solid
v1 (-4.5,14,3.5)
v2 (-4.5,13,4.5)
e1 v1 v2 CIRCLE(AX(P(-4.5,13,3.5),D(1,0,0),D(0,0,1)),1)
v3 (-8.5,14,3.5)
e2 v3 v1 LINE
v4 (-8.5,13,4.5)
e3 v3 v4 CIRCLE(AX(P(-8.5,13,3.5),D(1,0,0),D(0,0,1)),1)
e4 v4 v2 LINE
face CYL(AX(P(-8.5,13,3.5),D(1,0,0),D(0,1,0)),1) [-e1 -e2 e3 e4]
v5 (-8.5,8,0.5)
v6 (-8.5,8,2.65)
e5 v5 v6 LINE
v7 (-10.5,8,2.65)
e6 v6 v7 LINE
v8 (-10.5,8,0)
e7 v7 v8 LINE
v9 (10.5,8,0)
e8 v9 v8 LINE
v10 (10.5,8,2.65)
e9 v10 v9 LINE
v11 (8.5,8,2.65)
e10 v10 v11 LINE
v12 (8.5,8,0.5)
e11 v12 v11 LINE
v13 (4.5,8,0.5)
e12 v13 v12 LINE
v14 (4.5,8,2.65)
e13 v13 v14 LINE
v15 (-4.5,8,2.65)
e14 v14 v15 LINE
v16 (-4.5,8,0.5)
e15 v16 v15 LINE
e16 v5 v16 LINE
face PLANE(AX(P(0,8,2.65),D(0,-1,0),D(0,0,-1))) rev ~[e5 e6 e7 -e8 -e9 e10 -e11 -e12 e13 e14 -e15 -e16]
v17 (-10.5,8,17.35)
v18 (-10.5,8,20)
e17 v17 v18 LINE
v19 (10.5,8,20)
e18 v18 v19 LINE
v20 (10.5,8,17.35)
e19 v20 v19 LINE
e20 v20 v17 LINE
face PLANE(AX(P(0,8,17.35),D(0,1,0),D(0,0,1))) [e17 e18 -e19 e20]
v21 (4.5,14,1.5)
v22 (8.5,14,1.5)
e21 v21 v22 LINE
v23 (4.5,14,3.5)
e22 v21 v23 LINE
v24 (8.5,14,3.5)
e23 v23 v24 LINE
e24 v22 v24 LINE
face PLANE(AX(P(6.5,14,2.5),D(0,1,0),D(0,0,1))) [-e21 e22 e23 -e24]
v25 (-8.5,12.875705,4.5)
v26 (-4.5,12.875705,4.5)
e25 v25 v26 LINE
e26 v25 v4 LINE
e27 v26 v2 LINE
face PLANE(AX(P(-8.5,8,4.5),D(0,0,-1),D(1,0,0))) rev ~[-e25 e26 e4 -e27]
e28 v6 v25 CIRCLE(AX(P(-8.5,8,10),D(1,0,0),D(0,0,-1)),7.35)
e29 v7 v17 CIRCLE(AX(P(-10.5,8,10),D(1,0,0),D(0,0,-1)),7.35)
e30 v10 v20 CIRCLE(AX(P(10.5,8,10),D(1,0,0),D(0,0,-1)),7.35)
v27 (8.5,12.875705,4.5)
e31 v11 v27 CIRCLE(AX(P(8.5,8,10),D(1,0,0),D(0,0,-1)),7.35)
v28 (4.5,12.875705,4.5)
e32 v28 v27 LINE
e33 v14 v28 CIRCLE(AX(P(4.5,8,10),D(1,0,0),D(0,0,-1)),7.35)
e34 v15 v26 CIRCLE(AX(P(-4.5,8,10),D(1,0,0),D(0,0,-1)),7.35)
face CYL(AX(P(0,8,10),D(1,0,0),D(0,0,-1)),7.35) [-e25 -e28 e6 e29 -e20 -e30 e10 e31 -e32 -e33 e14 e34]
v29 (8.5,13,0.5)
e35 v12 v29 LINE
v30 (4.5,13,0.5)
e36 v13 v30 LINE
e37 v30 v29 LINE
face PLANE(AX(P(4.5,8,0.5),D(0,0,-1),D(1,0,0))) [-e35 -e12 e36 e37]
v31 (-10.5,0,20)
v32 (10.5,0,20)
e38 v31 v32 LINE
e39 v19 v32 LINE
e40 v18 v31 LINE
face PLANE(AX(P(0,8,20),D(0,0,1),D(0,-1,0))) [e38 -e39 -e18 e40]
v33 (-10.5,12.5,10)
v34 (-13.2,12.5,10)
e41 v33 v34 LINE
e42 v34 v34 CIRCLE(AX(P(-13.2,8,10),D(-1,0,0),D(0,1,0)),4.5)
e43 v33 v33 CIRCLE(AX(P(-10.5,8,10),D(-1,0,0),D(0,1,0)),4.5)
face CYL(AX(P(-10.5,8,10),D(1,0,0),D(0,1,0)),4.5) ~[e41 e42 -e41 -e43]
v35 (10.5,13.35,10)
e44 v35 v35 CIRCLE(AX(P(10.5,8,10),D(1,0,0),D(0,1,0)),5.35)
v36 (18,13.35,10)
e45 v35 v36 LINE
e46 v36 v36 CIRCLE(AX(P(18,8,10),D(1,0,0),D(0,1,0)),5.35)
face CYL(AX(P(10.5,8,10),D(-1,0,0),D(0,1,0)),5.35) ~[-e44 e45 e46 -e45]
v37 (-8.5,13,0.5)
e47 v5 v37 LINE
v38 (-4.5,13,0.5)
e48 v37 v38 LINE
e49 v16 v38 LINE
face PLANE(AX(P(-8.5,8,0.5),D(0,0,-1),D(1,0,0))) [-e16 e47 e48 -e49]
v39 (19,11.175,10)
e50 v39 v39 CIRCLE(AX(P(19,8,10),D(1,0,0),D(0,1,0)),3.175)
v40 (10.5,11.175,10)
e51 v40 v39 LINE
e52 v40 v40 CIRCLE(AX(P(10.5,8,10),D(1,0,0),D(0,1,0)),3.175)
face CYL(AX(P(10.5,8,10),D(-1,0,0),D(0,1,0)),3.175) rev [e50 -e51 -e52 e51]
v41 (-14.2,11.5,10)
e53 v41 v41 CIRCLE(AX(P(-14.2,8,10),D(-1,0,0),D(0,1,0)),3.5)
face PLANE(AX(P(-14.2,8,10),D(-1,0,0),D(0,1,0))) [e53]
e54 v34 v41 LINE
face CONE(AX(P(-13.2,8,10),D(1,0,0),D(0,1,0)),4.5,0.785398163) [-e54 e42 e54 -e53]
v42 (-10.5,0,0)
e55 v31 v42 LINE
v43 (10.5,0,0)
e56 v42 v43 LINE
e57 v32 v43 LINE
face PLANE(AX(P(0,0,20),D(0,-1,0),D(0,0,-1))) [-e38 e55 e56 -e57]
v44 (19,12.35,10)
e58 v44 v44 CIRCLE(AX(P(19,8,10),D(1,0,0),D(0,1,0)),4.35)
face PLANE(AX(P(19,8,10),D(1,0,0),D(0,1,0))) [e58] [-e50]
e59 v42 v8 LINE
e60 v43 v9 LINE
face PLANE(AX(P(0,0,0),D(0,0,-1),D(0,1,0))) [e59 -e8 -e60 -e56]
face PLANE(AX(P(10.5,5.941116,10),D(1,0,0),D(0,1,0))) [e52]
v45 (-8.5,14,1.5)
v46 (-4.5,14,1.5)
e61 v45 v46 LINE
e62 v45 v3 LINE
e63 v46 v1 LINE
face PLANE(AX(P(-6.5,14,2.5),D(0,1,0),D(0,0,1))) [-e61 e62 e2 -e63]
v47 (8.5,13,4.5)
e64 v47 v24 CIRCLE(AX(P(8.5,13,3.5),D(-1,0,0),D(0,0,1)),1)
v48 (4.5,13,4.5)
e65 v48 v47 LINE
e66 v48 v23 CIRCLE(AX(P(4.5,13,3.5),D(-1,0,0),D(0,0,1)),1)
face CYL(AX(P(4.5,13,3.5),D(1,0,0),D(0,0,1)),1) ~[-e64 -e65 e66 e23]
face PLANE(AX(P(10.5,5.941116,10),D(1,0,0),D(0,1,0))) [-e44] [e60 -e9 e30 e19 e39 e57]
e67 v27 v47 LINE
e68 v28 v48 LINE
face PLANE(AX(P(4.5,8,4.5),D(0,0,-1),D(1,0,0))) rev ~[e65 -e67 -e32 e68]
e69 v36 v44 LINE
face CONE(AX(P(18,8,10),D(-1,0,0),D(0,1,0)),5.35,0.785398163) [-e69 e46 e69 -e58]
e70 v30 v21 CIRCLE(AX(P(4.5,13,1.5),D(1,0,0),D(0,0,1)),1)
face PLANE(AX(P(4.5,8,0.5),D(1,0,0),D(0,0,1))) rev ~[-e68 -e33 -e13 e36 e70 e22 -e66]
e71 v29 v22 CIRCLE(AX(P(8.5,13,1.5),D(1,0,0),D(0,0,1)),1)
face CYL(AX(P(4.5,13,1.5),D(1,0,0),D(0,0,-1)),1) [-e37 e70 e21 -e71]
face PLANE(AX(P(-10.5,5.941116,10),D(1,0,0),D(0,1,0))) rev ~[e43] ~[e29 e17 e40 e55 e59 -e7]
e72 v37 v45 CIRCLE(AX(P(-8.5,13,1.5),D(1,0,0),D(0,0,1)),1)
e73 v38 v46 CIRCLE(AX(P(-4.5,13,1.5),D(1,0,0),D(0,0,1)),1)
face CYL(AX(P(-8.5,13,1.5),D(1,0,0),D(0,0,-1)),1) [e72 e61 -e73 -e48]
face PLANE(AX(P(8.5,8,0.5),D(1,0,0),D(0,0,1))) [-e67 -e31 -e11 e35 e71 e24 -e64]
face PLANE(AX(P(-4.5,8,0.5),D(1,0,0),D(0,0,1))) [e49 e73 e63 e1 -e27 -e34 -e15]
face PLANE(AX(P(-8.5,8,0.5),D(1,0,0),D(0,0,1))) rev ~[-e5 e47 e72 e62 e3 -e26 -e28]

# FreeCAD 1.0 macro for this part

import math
import FreeCAD as App
import Part
import Sketcher

V = App.Vector
Q = App.Units.Quantity


def edges_at(feature, points):
    """Names of the edges that pass closest to the given points."""
    edges = feature.Shape.Edges
    near = lambda p: min(range(len(edges)), key=lambda i: edges[i].distToShape(Part.Vertex(*p))[0])
    return sorted({f"Edge{near(p) + 1}" for p in points})


def add_polygon(sketch, points):
    """Adds a closed chain of lines whose ends are joined by coincident constraints."""
    first, n = sketch.GeometryCount, len(points)
    for a, b in zip(points, points[1:] + points[:1]):
        sketch.addGeometry(Part.LineSegment(App.Vector(*a, 0), App.Vector(*b, 0)), False)
    for i in range(n):
        sketch.addConstraint(Sketcher.Constraint("Coincident", first + i, 2, first + (i + 1) % n, 1))

doc = App.newDocument("Part")
body = doc.addObject("PartDesign::Body", "Body")

sketch1 = doc.addObject("Sketcher::SketchObject", "Sketch")
body.addObject(sketch1)
sketch1.AttachmentSupport = (doc.YZ_Plane, [""])
sketch1.MapMode = "FlatFace"
sketch1.addGeometry([
    Part.LineSegment(V(8, 17.35, 0), V(8, 20, 0)),
    Part.LineSegment(V(8, 20, 0), V(0, 20, 0)),
    Part.LineSegment(V(0, 20, 0), V(0, 0, 0)),
    Part.LineSegment(V(0, 0, 0), V(8, 0, 0)),
    Part.LineSegment(V(8, 0, 0), V(8, 2.65, 0)),
    Part.ArcOfCircle(Part.Circle(V(8, 10, 0), V(0, 0, 1), 7.35), math.radians(-90), math.radians(90)),
], False)
sketch1.addConstraint([
    Sketcher.Constraint("Coincident", 0, 2, 1, 1),
    Sketcher.Constraint("Coincident", 1, 2, 2, 1),
    Sketcher.Constraint("Coincident", 2, 2, 3, 1),
    Sketcher.Constraint("Coincident", 3, 2, 4, 1),
    Sketcher.Constraint("Coincident", 4, 2, 5, 1),
    Sketcher.Constraint("Coincident", 5, 2, 0, 1),
    Sketcher.Constraint("Vertical", 0),
    Sketcher.Constraint("Horizontal", 1),
    Sketcher.Constraint("Vertical", 2),
    Sketcher.Constraint("Horizontal", 3),
    Sketcher.Constraint("Vertical", 4),
    Sketcher.Constraint("Coincident", 2, 2, -1, 1),
    Sketcher.Constraint("Vertical", 5, 3, 0, 2),
    Sketcher.Constraint("Vertical", 0, 2, 3, 2),
    Sketcher.Constraint("Equal", 0, 4),
    Sketcher.Constraint("DistanceX", 1, 2, 1, 1, Q("8 mm")),
    Sketcher.Constraint("DistanceY", 2, 2, 2, 1, Q("20 mm")),
    Sketcher.Constraint("Radius", 5, Q("7.35 mm")),
])
pad1 = doc.addObject("PartDesign::Pad", "Pad")
body.addObject(pad1)
pad1.Profile = sketch1
pad1.Length = 21
pad1.Midplane = True

sketch2 = doc.addObject("Sketcher::SketchObject", "Sketch001")
body.addObject(sketch2)
sketch2.AttachmentSupport = (doc.YZ_Plane, [""])
sketch2.MapMode = "FlatFace"
sketch2.AttachmentOffset = App.Placement(V(0, 0, 10.5), App.Rotation())
sketch2.addGeometry([
    Part.Circle(V(8, 10, 0), V(0, 0, 1), 5.35),
    Part.Circle(V(8, 10, 0), V(0, 0, 1), 3.175),
], False)
sketch2.addConstraint([
    Sketcher.Constraint("Coincident", 1, 3, 0, 3),
    Sketcher.Constraint("Diameter", 0, Q("10.7 mm")),
    Sketcher.Constraint("Diameter", 1, Q("6.35 mm")),
    Sketcher.Constraint("DistanceX", -1, 1, 0, 3, Q("8 mm")),
    Sketcher.Constraint("DistanceY", -1, 1, 0, 3, Q("10 mm")),
])
pad2 = doc.addObject("PartDesign::Pad", "Pad001")
body.addObject(pad2)
pad2.Profile = sketch2
pad2.Length = 8.5

sketch3 = doc.addObject("Sketcher::SketchObject", "Sketch002")
body.addObject(sketch3)
sketch3.AttachmentSupport = (doc.YZ_Plane, [""])
sketch3.MapMode = "FlatFace"
sketch3.AttachmentOffset = App.Placement(V(0, 0, -10.5), App.Rotation())
sketch3.addGeometry(Part.Circle(V(8, 10, 0), V(0, 0, 1), 4.5), False)
sketch3.addConstraint([
    Sketcher.Constraint("Diameter", 0, Q("9 mm")),
    Sketcher.Constraint("DistanceX", -1, 1, 0, 3, Q("8 mm")),
    Sketcher.Constraint("DistanceY", -1, 1, 0, 3, Q("10 mm")),
])
pad3 = doc.addObject("PartDesign::Pad", "Pad002")
body.addObject(pad3)
pad3.Profile = sketch3
pad3.Length = 3.7
pad3.Reversed = True
doc.recompute()

chamfer = doc.addObject("PartDesign::Chamfer", "Chamfer")
body.addObject(chamfer)
chamfer.Base = (pad3, edges_at(pad3, [(-14.2, 3.5, 10), (19, 2.65, 10)]))
chamfer.Size = 1

sketch4 = doc.addObject("Sketcher::SketchObject", "Sketch003")
body.addObject(sketch4)
sketch4.AttachmentSupport = (doc.XZ_Plane, [""])
sketch4.MapMode = "FlatFace"
sketch4.AttachmentOffset = App.Placement(V(0, 0, -8), App.Rotation())
add_polygon(sketch4, [(-4.5, 0.5), (-8.5, 0.5), (-8.5, 4.5), (-4.5, 4.5)])
add_polygon(sketch4, [(8.5, 0.5), (4.5, 0.5), (4.5, 4.5), (8.5, 4.5)])
sketch4.addConstraint([
    Sketcher.Constraint("Horizontal", 0),
    Sketcher.Constraint("Vertical", 1),
    Sketcher.Constraint("Horizontal", 2),
    Sketcher.Constraint("Vertical", 3),
    Sketcher.Constraint("Horizontal", 4),
    Sketcher.Constraint("Vertical", 5),
    Sketcher.Constraint("Horizontal", 6),
    Sketcher.Constraint("Vertical", 7),
    Sketcher.Constraint("Symmetric", 3, 2, 4, 2, -2),
    Sketcher.Constraint("Symmetric", 1, 2, 6, 2, -2),
    Sketcher.Constraint("Equal", 6, 1),
    Sketcher.Constraint("DistanceX", 0, 2, 0, 1, Q("4 mm")),
    Sketcher.Constraint("DistanceX", 3, 2, 4, 2, Q("9 mm")),
    Sketcher.Constraint("DistanceY", -1, 1, 0, 2, Q("0.5 mm")),
])
pad4 = doc.addObject("PartDesign::Pad", "Pad003")
body.addObject(pad4)
pad4.Profile = sketch4
pad4.Length = 6
pad4.Reversed = True
doc.recompute()

fillet = doc.addObject("PartDesign::Fillet", "Fillet")
body.addObject(fillet)
fillet.Base = (pad4, edges_at(pad4, [
    (-6.5, 14, 0.5),
    (6.5, 14, 0.5),
    (-6.5, 14, 4.5),
    (6.5, 14, 4.5),
]))
fillet.Radius = 1

doc.recompute()
